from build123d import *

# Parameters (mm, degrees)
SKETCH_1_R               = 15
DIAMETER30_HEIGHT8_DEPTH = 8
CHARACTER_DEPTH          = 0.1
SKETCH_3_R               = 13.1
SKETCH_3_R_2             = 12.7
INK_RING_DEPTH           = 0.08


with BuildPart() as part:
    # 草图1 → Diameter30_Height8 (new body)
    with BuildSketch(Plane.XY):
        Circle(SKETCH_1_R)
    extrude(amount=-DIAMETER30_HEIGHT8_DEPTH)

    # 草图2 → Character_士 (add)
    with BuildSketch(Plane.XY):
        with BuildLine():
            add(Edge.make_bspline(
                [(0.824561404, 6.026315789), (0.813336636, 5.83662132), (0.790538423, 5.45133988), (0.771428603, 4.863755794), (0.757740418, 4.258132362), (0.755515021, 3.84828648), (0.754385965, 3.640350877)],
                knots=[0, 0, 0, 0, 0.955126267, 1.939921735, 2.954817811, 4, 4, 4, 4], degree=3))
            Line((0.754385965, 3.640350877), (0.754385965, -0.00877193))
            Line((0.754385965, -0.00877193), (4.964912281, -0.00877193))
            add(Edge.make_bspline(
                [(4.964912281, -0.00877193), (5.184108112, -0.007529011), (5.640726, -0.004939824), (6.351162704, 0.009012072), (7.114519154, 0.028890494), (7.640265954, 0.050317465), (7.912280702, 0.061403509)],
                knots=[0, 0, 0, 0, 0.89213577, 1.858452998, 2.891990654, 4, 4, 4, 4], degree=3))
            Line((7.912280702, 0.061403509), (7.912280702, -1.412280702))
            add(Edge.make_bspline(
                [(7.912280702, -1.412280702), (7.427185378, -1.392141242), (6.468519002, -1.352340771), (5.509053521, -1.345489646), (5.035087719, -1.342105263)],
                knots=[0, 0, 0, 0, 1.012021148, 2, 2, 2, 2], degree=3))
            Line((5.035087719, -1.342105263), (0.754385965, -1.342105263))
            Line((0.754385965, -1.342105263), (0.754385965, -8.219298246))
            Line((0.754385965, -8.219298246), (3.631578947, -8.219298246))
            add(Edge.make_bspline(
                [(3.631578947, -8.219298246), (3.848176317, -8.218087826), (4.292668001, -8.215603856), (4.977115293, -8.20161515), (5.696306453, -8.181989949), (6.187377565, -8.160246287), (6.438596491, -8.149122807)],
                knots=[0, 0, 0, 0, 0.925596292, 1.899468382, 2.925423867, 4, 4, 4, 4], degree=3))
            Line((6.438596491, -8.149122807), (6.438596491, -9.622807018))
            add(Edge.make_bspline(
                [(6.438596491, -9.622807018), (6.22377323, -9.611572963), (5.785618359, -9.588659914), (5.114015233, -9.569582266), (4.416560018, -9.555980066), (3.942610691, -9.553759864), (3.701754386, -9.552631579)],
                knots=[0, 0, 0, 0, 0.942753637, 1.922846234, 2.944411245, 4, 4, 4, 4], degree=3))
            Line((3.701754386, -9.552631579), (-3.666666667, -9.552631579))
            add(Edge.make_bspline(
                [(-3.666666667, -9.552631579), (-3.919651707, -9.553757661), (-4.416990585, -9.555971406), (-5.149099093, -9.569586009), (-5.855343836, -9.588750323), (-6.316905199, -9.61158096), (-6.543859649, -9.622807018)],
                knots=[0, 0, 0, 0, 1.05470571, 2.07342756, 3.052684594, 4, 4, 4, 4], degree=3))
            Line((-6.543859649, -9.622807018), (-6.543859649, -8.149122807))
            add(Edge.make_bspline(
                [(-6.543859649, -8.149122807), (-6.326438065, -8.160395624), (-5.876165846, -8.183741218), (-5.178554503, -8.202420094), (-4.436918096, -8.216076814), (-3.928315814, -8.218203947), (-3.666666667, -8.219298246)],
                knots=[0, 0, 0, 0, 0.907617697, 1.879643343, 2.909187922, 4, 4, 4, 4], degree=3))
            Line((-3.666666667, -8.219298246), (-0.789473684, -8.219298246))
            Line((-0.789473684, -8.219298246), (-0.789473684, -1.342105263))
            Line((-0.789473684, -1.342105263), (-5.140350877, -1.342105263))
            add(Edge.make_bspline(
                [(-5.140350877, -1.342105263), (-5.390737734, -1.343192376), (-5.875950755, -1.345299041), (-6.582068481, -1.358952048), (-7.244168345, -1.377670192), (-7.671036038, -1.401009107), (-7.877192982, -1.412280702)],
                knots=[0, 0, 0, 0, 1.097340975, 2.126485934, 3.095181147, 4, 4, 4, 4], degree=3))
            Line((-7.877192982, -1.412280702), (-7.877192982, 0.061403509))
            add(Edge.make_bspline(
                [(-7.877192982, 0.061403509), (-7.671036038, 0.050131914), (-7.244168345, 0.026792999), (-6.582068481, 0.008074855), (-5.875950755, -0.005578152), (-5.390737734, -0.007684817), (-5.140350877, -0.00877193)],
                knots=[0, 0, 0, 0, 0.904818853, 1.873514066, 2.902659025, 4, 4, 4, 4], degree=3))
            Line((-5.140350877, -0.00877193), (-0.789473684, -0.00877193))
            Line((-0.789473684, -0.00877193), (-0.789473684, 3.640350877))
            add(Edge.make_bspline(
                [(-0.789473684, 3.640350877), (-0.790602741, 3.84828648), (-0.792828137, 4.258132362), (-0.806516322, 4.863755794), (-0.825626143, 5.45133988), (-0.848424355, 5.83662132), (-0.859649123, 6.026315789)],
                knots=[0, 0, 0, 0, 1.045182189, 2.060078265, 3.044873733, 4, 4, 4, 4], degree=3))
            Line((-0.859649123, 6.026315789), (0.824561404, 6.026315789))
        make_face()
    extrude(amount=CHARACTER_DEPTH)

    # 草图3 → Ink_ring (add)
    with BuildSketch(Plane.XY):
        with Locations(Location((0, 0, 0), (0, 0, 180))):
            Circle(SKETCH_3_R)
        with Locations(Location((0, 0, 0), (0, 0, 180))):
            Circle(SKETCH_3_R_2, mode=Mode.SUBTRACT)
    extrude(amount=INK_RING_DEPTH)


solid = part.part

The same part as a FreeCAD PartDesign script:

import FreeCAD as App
import Part
import Sketcher
from FreeCAD import Vector
Q = App.Units.Quantity

doc = App.newDocument("Part")
body = doc.addObject("PartDesign::Body", "Body")

# Sketch on XY plane
sketch1 = body.newObject("Sketcher::SketchObject", "Sketch")
sketch1.AttachmentSupport = (doc.getObject("XY_Plane"), [""])
sketch1.MapMode = "FlatFace"
sketch1.addGeometry(Part.Circle(Vector(0, 0, 0), Vector(0, 0, 1), 15), False)
sketch1.addConstraint(Sketcher.Constraint("Coincident", 0, 3, -1, 1))
sketch1.addConstraint(Sketcher.Constraint("Diameter", 0, Q("30 mm")))
pad1 = body.newObject("PartDesign::Pad", "Pad")
pad1.Profile = sketch1
pad1.Length = 8
pad1.Reversed = True

# Sketch on XY plane
sketch2 = body.newObject("Sketcher::SketchObject", "Sketch001")
sketch2.AttachmentSupport = (doc.getObject("XY_Plane"), [""])
sketch2.MapMode = "FlatFace"
sketch2.addGeometry(Part.BSplineCurve([Vector(0.824561, 6.026316, 0), Vector(0.813337, 5.836621, 0), Vector(0.790538, 5.45134, 0), Vector(0.771429, 4.863756, 0), Vector(0.75774, 4.258132, 0), Vector(0.755515, 3.848286, 0), Vector(0.754386, 3.640351, 0)], [4, 1, 1, 1, 4], [0, 0.955126267, 1.939921735, 2.954817811, 4], False, 3, [1, 1, 1, 1, 1, 1, 1], False), False)
sketch2.addGeometry(Part.LineSegment(Vector(0.824561, 6.026316, 0), Vector(-0.859649, 6.026316, 0)), False)
sketch2.addGeometry(Part.BSplineCurve([Vector(-0.789474, 3.640351, 0), Vector(-0.790603, 3.848286, 0), Vector(-0.792828, 4.258132, 0), Vector(-0.806516, 4.863756, 0), Vector(-0.825626, 5.45134, 0), Vector(-0.848424, 5.836621, 0), Vector(-0.859649, 6.026316, 0)], [4, 1, 1, 1, 4], [0, 1.045182189, 2.060078265, 3.044873733, 4], False, 3, [1, 1, 1, 1, 1, 1, 1], False), False)
sketch2.addGeometry(Part.LineSegment(Vector(-0.789474, 3.640351, 0), Vector(-0.789474, -0.008772, 0)), False)
sketch2.addGeometry(Part.LineSegment(Vector(-0.789474, -0.008772, 0), Vector(-5.140351, -0.008772, 0)), False)
sketch2.addGeometry(Part.BSplineCurve([Vector(-7.877193, 0.061404, 0), Vector(-7.671036, 0.050132, 0), Vector(-7.244168, 0.026793, 0), Vector(-6.582068, 0.008075, 0), Vector(-5.875951, -0.005578, 0), Vector(-5.390738, -0.007685, 0), Vector(-5.140351, -0.008772, 0)], [4, 1, 1, 1, 4], [0, 0.904818853, 1.873514066, 2.902659025, 4], False, 3, [1, 1, 1, 1, 1, 1, 1], False), False)
sketch2.addGeometry(Part.LineSegment(Vector(-7.877193, 0.061404, 0), Vector(-7.877193, -1.412281, 0)), False)
sketch2.addGeometry(Part.BSplineCurve([Vector(-5.140351, -1.342105, 0), Vector(-5.390738, -1.343192, 0), Vector(-5.875951, -1.345299, 0), Vector(-6.582068, -1.358952, 0), Vector(-7.244168, -1.37767, 0), Vector(-7.671036, -1.401009, 0), Vector(-7.877193, -1.412281, 0)], [4, 1, 1, 1, 4], [0, 1.097340975, 2.126485934, 3.095181147, 4], False, 3, [1, 1, 1, 1, 1, 1, 1], False), False)
sketch2.addGeometry(Part.LineSegment(Vector(-5.140351, -1.342105, 0), Vector(-0.789474, -1.342105, 0)), False)
sketch2.addGeometry(Part.LineSegment(Vector(-0.789474, -1.342105, 0), Vector(-0.789474, -8.219298, 0)), False)
sketch2.addGeometry(Part.LineSegment(Vector(-0.789474, -8.219298, 0), Vector(-3.666667, -8.219298, 0)), False)
sketch2.addGeometry(Part.BSplineCurve([Vector(-6.54386, -8.149123, 0), Vector(-6.326438, -8.160396, 0), Vector(-5.876166, -8.183741, 0), Vector(-5.178555, -8.20242, 0), Vector(-4.436918, -8.216077, 0), Vector(-3.928316, -8.218204, 0), Vector(-3.666667, -8.219298, 0)], [4, 1, 1, 1, 4], [0, 0.907617697, 1.879643343, 2.909187922, 4], False, 3, [1, 1, 1, 1, 1, 1, 1], False), False)
sketch2.addGeometry(Part.LineSegment(Vector(-6.54386, -8.149123, 0), Vector(-6.54386, -9.622807, 0)), False)
sketch2.addGeometry(Part.BSplineCurve([Vector(-3.666667, -9.552632, 0), Vector(-3.919652, -9.553758, 0), Vector(-4.416991, -9.555971, 0), Vector(-5.149099, -9.569586, 0), Vector(-5.855344, -9.58875, 0), Vector(-6.316905, -9.611581, 0), Vector(-6.54386, -9.622807, 0)], [4, 1, 1, 1, 4], [0, 1.05470571, 2.07342756, 3.052684594, 4], False, 3, [1, 1, 1, 1, 1, 1, 1], False), False)
sketch2.addGeometry(Part.LineSegment(Vector(-3.666667, -9.552632, 0), Vector(3.701754, -9.552632, 0)), False)
sketch2.addGeometry(Part.BSplineCurve([Vector(6.438596, -9.622807, 0), Vector(6.223773, -9.611573, 0), Vector(5.785618, -9.58866, 0), Vector(5.114015, -9.569582, 0), Vector(4.41656, -9.55598, 0), Vector(3.942611, -9.55376, 0), Vector(3.701754, -9.552632, 0)], [4, 1, 1, 1, 4], [0, 0.942753637, 1.922846234, 2.944411245, 4], False, 3, [1, 1, 1, 1, 1, 1, 1], False), False)
sketch2.addGeometry(Part.LineSegment(Vector(6.438596, -9.622807, 0), Vector(6.438596, -8.149123, 0)), False)
sketch2.addGeometry(Part.BSplineCurve([Vector(3.631579, -8.219298, 0), Vector(3.848176, -8.218088, 0), Vector(4.292668, -8.215604, 0), Vector(4.977115, -8.201615, 0), Vector(5.696306, -8.18199, 0), Vector(6.187378, -8.160246, 0), Vector(6.438596, -8.149123, 0)], [4, 1, 1, 1, 4], [0, 0.925596292, 1.899468382, 2.925423867, 4], False, 3, [1, 1, 1, 1, 1, 1, 1], False), False)
sketch2.addGeometry(Part.LineSegment(Vector(3.631579, -8.219298, 0), Vector(0.754386, -8.219298, 0)), False)
sketch2.addGeometry(Part.LineSegment(Vector(0.754386, -8.219298, 0), Vector(0.754386, -1.342105, 0)), False)
sketch2.addGeometry(Part.LineSegment(Vector(0.754386, -1.342105, 0), Vector(5.035088, -1.342105, 0)), False)
sketch2.addGeometry(Part.BSplineCurve([Vector(7.912281, -1.412281, 0), Vector(7.427185, -1.392141, 0), Vector(6.468519, -1.352341, 0), Vector(5.509054, -1.34549, 0), Vector(5.035088, -1.342105, 0)], [4, 1, 4], [0, 1.012021148, 2], False, 3, [1, 1, 1, 1, 1], False), False)
sketch2.addGeometry(Part.LineSegment(Vector(7.912281, -1.412281, 0), Vector(7.912281, 0.061404, 0)), False)
sketch2.addGeometry(Part.BSplineCurve([Vector(4.964912, -0.008772, 0), Vector(5.184108, -0.007529, 0), Vector(5.640726, -0.00494, 0), Vector(6.351163, 0.009012, 0), Vector(7.114519, 0.02889, 0), Vector(7.640266, 0.050317, 0), Vector(7.912281, 0.061404, 0)], [4, 1, 1, 1, 4], [0, 0.89213577, 1.858452998, 2.891990654, 4], False, 3, [1, 1, 1, 1, 1, 1, 1], False), False)
sketch2.addGeometry(Part.LineSegment(Vector(4.964912, -0.008772, 0), Vector(0.754386, -0.008772, 0)), False)
sketch2.addGeometry(Part.LineSegment(Vector(0.754386, -0.008772, 0), Vector(0.754386, 3.640351, 0)), False)
sketch2.addConstraint(Sketcher.Constraint("Block", 0))
sketch2.addConstraint(Sketcher.Constraint("Block", 2))
sketch2.addConstraint(Sketcher.Constraint("Block", 5))
sketch2.addConstraint(Sketcher.Constraint("Block", 7))
sketch2.addConstraint(Sketcher.Constraint("Block", 11))
sketch2.addConstraint(Sketcher.Constraint("Block", 13))
sketch2.addConstraint(Sketcher.Constraint("Block", 15))
sketch2.addConstraint(Sketcher.Constraint("Block", 17))
sketch2.addConstraint(Sketcher.Constraint("Block", 21))
sketch2.addConstraint(Sketcher.Constraint("Block", 23))
sketch2.addConstraint(Sketcher.Constraint("Coincident", 0, 1, 1, 1))
sketch2.addConstraint(Sketcher.Constraint("Coincident", 1, 2, 2, 2))
sketch2.addConstraint(Sketcher.Constraint("Coincident", 2, 1, 3, 1))
sketch2.addConstraint(Sketcher.Constraint("Coincident", 3, 2, 4, 1))
sketch2.addConstraint(Sketcher.Constraint("Coincident", 4, 2, 5, 2))
sketch2.addConstraint(Sketcher.Constraint("Coincident", 5, 1, 6, 1))
sketch2.addConstraint(Sketcher.Constraint("Coincident", 6, 2, 7, 2))
sketch2.addConstraint(Sketcher.Constraint("Coincident", 7, 1, 8, 1))
sketch2.addConstraint(Sketcher.Constraint("Coincident", 8, 2, 9, 1))
sketch2.addConstraint(Sketcher.Constraint("Coincident", 9, 2, 10, 1))
sketch2.addConstraint(Sketcher.Constraint("Coincident", 10, 2, 11, 2))
sketch2.addConstraint(Sketcher.Constraint("Coincident", 11, 1, 12, 1))
sketch2.addConstraint(Sketcher.Constraint("Coincident", 12, 2, 13, 2))
sketch2.addConstraint(Sketcher.Constraint("Coincident", 13, 1, 14, 1))
sketch2.addConstraint(Sketcher.Constraint("Coincident", 14, 2, 15, 2))
sketch2.addConstraint(Sketcher.Constraint("Coincident", 15, 1, 16, 1))
sketch2.addConstraint(Sketcher.Constraint("Coincident", 16, 2, 17, 2))
sketch2.addConstraint(Sketcher.Constraint("Coincident", 17, 1, 18, 1))
sketch2.addConstraint(Sketcher.Constraint("Coincident", 18, 2, 19, 1))
sketch2.addConstraint(Sketcher.Constraint("Coincident", 19, 2, 20, 1))
sketch2.addConstraint(Sketcher.Constraint("Coincident", 20, 2, 21, 2))
sketch2.addConstraint(Sketcher.Constraint("Coincident", 21, 1, 22, 1))
sketch2.addConstraint(Sketcher.Constraint("Coincident", 22, 2, 23, 2))
sketch2.addConstraint(Sketcher.Constraint("Coincident", 23, 1, 24, 1))
sketch2.addConstraint(Sketcher.Constraint("Coincident", 24, 2, 25, 1))
sketch2.addConstraint(Sketcher.Constraint("Coincident", 25, 2, 0, 2))
sketch2.addConstraint(Sketcher.Constraint("Vertical", 3))
sketch2.addConstraint(Sketcher.Constraint("Horizontal", 4))
sketch2.addConstraint(Sketcher.Constraint("Horizontal", 8))
sketch2.addConstraint(Sketcher.Constraint("Vertical", 9))
sketch2.addConstraint(Sketcher.Constraint("Horizontal", 10))
sketch2.addConstraint(Sketcher.Constraint("Horizontal", 18))
sketch2.addConstraint(Sketcher.Constraint("Vertical", 19))
sketch2.addConstraint(Sketcher.Constraint("Horizontal", 20))
sketch2.addConstraint(Sketcher.Constraint("Horizontal", 24))
sketch2.addConstraint(Sketcher.Constraint("Vertical", 25))
sketch2.addConstraint(Sketcher.Constraint("Vertical", 3, 2, 8, 2))
sketch2.addConstraint(Sketcher.Constraint("Vertical", 19, 2, 24, 2))
pad2 = body.newObject("PartDesign::Pad", "Pad001")
pad2.Profile = sketch2
pad2.Length = 0.1

# Sketch on XY plane
sketch3 = body.newObject("Sketcher::SketchObject", "Sketch002")
sketch3.AttachmentSupport = (doc.getObject("XY_Plane"), [""])
sketch3.MapMode = "FlatFace"
sketch3.addGeometry(Part.Circle(Vector(0, 0, 0), Vector(0, 0, 1), 13.1), False)
sketch3.addGeometry(Part.Circle(Vector(0, 0, 0), Vector(0, 0, 1), 12.7), False)
sketch3.addConstraint(Sketcher.Constraint("Coincident", 0, 3, -1, 1))
sketch3.addConstraint(Sketcher.Constraint("Coincident", 1, 3, -1, 1))
sketch3.addConstraint(Sketcher.Constraint("Diameter", 0, Q("26.2 mm")))
sketch3.addConstraint(Sketcher.Constraint("Diameter", 1, Q("25.4 mm")))
pad3 = body.newObject("PartDesign::Pad", "Pad002")
pad3.Profile = sketch3
pad3.Length = 0.08

doc.recompute()
